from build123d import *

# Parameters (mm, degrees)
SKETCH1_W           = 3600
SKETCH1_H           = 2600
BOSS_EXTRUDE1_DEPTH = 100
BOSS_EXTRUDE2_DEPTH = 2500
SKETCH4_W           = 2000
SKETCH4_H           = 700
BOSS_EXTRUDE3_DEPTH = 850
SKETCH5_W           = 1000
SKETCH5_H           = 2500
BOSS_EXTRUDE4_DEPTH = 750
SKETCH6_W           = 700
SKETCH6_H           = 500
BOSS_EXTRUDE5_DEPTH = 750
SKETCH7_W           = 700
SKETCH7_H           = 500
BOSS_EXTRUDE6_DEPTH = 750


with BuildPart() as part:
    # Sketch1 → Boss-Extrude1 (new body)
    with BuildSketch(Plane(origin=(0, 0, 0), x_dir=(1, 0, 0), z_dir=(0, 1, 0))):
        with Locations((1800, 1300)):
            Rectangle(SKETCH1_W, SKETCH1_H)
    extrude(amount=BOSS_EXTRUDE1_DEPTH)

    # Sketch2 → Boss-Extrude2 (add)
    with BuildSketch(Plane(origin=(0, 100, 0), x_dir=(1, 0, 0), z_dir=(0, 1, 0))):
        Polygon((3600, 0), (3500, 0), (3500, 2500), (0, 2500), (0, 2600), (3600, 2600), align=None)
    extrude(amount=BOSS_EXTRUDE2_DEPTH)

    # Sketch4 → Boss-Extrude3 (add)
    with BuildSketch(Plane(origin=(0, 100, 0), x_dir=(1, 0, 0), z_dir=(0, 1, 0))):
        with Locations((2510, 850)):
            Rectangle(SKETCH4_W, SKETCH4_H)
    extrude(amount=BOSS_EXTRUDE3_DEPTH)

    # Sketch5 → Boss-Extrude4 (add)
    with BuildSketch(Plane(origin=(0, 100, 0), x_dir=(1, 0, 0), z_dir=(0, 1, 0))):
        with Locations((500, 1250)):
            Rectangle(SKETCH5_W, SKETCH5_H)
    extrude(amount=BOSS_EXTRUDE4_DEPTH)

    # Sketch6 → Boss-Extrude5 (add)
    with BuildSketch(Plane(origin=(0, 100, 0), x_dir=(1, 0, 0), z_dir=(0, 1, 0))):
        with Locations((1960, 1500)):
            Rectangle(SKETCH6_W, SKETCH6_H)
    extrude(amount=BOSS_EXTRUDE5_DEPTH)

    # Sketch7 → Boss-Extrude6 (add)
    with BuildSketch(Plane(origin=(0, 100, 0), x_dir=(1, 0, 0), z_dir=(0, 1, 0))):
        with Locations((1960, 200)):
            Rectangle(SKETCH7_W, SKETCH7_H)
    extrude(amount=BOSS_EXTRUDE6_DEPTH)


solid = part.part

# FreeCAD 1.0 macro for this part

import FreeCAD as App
import Part
import Sketcher

V = App.Vector
Q = App.Units.Quantity


def add_polygon(sketch, points):
    """Adds a closed chain of lines whose ends are joined by coincident constraints."""
    first, n = sketch.GeometryCount, len(points)
    for a, b in zip(points, points[1:] + points[:1]):
        sketch.addGeometry(Part.LineSegment(App.Vector(*a, 0), App.Vector(*b, 0)), False)
    for i in range(n):
        sketch.addConstraint(Sketcher.Constraint("Coincident", first + i, 2, first + (i + 1) % n, 1))

doc = App.newDocument("Part")
body = doc.addObject("PartDesign::Body", "Body")

sketch1 = doc.addObject("Sketcher::SketchObject", "Sketch")
body.addObject(sketch1)
sketch1.AttachmentSupport = (doc.XZ_Plane, [""])
sketch1.MapMode = "FlatFace"
add_polygon(sketch1, [(0, -2600), (0, 0), (3600, 0), (3600, -2600)])
sketch1.addConstraint([
    Sketcher.Constraint("Vertical", 0),
    Sketcher.Constraint("Horizontal", 1),
    Sketcher.Constraint("Vertical", 2),
    Sketcher.Constraint("Horizontal", 3),
    Sketcher.Constraint("Coincident", 0, 2, -1, 1),
    Sketcher.Constraint("DistanceX", 1, 1, 1, 2, Q("3600 mm")),
    Sketcher.Constraint("DistanceY", 0, 1, 0, 2, Q("2600 mm")),
])
pad1 = doc.addObject("PartDesign::Pad", "Pad")
body.addObject(pad1)
pad1.Profile = sketch1
pad1.Length = 100
pad1.Reversed = True

sketch2 = doc.addObject("Sketcher::SketchObject", "Sketch001")
body.addObject(sketch2)
sketch2.AttachmentSupport = (doc.XZ_Plane, [""])
sketch2.MapMode = "FlatFace"
sketch2.AttachmentOffset = App.Placement(V(0, 0, -100), App.Rotation())
add_polygon(sketch2, [(3500, 0), (3600, 0), (3600, -2600), (0, -2600), (0, -2500), (3500, -2500)])
sketch2.addConstraint([
    Sketcher.Constraint("Horizontal", 0),
    Sketcher.Constraint("Vertical", 1),
    Sketcher.Constraint("Horizontal", 2),
    Sketcher.Constraint("Vertical", 3),
    Sketcher.Constraint("Horizontal", 4),
    Sketcher.Constraint("Vertical", 5),
    Sketcher.Constraint("PointOnObject", 0, 2, -1),
    Sketcher.Constraint("PointOnObject", 2, 2, -2),
    Sketcher.Constraint("Equal", 0, 3),
    Sketcher.Constraint("DistanceX", 0, 1, 0, 2, Q("100 mm")),
    Sketcher.Constraint("DistanceX", 2, 2, 2, 1, Q("3600 mm")),
    Sketcher.Constraint("DistanceY", 1, 2, 1, 1, Q("2600 mm")),
])
pad2 = doc.addObject("PartDesign::Pad", "Pad001")
body.addObject(pad2)
pad2.Profile = sketch2
pad2.Length = 2500
pad2.Reversed = True

sketch3 = doc.addObject("Sketcher::SketchObject", "Sketch002")
body.addObject(sketch3)
sketch3.AttachmentSupport = (doc.XZ_Plane, [""])
sketch3.MapMode = "FlatFace"
sketch3.AttachmentOffset = App.Placement(V(0, 0, -100), App.Rotation())
add_polygon(sketch3, [(1510, -1200), (1510, -500), (3510, -500), (3510, -1200)])
sketch3.addConstraint([
    Sketcher.Constraint("Vertical", 0),
    Sketcher.Constraint("Horizontal", 1),
    Sketcher.Constraint("Vertical", 2),
    Sketcher.Constraint("Horizontal", 3),
    Sketcher.Constraint("DistanceX", 1, 1, 1, 2, Q("2000 mm")),
    Sketcher.Constraint("DistanceY", 0, 1, 0, 2, Q("700 mm")),
    Sketcher.Constraint("DistanceX", -1, 1, 0, 2, Q("1510 mm")),
    Sketcher.Constraint("DistanceY", 0, 2, -1, 1, Q("500 mm")),
])
pad3 = doc.addObject("PartDesign::Pad", "Pad002")
body.addObject(pad3)
pad3.Profile = sketch3
pad3.Length = 850
pad3.Reversed = True

sketch4 = doc.addObject("Sketcher::SketchObject", "Sketch003")
body.addObject(sketch4)
sketch4.AttachmentSupport = (doc.XZ_Plane, [""])
sketch4.MapMode = "FlatFace"
sketch4.AttachmentOffset = App.Placement(V(0, 0, -100), App.Rotation())
add_polygon(sketch4, [(0, -2500), (0, 0), (1000, 0), (1000, -2500)])
sketch4.addConstraint([
    Sketcher.Constraint("Vertical", 0),
    Sketcher.Constraint("Horizontal", 1),
    Sketcher.Constraint("Vertical", 2),
    Sketcher.Constraint("Horizontal", 3),
    Sketcher.Constraint("Coincident", 0, 2, -1, 1),
    Sketcher.Constraint("DistanceX", 1, 1, 1, 2, Q("1000 mm")),
    Sketcher.Constraint("DistanceY", 0, 1, 0, 2, Q("2500 mm")),
])
pad4 = doc.addObject("PartDesign::Pad", "Pad003")
body.addObject(pad4)
pad4.Profile = sketch4
pad4.Length = 750
pad4.Reversed = True

sketch5 = doc.addObject("Sketcher::SketchObject", "Sketch004")
body.addObject(sketch5)
sketch5.AttachmentSupport = (doc.XZ_Plane, [""])
sketch5.MapMode = "FlatFace"
sketch5.AttachmentOffset = App.Placement(V(0, 0, -100), App.Rotation())
add_polygon(sketch5, [(1610, -1750), (1610, -1250), (2310, -1250), (2310, -1750)])
sketch5.addConstraint([
    Sketcher.Constraint("Vertical", 0),
    Sketcher.Constraint("Horizontal", 1),
    Sketcher.Constraint("Vertical", 2),
    Sketcher.Constraint("Horizontal", 3),
    Sketcher.Constraint("DistanceX", 1, 1, 1, 2, Q("700 mm")),
    Sketcher.Constraint("DistanceY", 0, 1, 0, 2, Q("500 mm")),
    Sketcher.Constraint("DistanceX", -1, 1, 0, 2, Q("1610 mm")),
    Sketcher.Constraint("DistanceY", 0, 2, -1, 1, Q("1250 mm")),
])
pad5 = doc.addObject("PartDesign::Pad", "Pad004")
body.addObject(pad5)
pad5.Profile = sketch5
pad5.Length = 750
pad5.Reversed = True

sketch6 = doc.addObject("Sketcher::SketchObject", "Sketch005")
body.addObject(sketch6)
sketch6.AttachmentSupport = (doc.XZ_Plane, [""])
sketch6.MapMode = "FlatFace"
sketch6.AttachmentOffset = App.Placement(V(0, 0, -100), App.Rotation())
add_polygon(sketch6, [(1610, -450), (1610, 50), (2310, 50), (2310, -450)])
sketch6.addConstraint([
    Sketcher.Constraint("Vertical", 0),
    Sketcher.Constraint("Horizontal", 1),
    Sketcher.Constraint("Vertical", 2),
    Sketcher.Constraint("Horizontal", 3),
    Sketcher.Constraint("DistanceX", 1, 1, 1, 2, Q("700 mm")),
    Sketcher.Constraint("DistanceY", 0, 1, 0, 2, Q("500 mm")),
    Sketcher.Constraint("DistanceX", -1, 1, 0, 2, Q("1610 mm")),
    Sketcher.Constraint("DistanceY", -1, 1, 0, 2, Q("50 mm")),
])
pad6 = doc.addObject("PartDesign::Pad", "Pad005")
body.addObject(pad6)
pad6.Profile = sketch6
pad6.Length = 750
pad6.Reversed = True

doc.recompute()
